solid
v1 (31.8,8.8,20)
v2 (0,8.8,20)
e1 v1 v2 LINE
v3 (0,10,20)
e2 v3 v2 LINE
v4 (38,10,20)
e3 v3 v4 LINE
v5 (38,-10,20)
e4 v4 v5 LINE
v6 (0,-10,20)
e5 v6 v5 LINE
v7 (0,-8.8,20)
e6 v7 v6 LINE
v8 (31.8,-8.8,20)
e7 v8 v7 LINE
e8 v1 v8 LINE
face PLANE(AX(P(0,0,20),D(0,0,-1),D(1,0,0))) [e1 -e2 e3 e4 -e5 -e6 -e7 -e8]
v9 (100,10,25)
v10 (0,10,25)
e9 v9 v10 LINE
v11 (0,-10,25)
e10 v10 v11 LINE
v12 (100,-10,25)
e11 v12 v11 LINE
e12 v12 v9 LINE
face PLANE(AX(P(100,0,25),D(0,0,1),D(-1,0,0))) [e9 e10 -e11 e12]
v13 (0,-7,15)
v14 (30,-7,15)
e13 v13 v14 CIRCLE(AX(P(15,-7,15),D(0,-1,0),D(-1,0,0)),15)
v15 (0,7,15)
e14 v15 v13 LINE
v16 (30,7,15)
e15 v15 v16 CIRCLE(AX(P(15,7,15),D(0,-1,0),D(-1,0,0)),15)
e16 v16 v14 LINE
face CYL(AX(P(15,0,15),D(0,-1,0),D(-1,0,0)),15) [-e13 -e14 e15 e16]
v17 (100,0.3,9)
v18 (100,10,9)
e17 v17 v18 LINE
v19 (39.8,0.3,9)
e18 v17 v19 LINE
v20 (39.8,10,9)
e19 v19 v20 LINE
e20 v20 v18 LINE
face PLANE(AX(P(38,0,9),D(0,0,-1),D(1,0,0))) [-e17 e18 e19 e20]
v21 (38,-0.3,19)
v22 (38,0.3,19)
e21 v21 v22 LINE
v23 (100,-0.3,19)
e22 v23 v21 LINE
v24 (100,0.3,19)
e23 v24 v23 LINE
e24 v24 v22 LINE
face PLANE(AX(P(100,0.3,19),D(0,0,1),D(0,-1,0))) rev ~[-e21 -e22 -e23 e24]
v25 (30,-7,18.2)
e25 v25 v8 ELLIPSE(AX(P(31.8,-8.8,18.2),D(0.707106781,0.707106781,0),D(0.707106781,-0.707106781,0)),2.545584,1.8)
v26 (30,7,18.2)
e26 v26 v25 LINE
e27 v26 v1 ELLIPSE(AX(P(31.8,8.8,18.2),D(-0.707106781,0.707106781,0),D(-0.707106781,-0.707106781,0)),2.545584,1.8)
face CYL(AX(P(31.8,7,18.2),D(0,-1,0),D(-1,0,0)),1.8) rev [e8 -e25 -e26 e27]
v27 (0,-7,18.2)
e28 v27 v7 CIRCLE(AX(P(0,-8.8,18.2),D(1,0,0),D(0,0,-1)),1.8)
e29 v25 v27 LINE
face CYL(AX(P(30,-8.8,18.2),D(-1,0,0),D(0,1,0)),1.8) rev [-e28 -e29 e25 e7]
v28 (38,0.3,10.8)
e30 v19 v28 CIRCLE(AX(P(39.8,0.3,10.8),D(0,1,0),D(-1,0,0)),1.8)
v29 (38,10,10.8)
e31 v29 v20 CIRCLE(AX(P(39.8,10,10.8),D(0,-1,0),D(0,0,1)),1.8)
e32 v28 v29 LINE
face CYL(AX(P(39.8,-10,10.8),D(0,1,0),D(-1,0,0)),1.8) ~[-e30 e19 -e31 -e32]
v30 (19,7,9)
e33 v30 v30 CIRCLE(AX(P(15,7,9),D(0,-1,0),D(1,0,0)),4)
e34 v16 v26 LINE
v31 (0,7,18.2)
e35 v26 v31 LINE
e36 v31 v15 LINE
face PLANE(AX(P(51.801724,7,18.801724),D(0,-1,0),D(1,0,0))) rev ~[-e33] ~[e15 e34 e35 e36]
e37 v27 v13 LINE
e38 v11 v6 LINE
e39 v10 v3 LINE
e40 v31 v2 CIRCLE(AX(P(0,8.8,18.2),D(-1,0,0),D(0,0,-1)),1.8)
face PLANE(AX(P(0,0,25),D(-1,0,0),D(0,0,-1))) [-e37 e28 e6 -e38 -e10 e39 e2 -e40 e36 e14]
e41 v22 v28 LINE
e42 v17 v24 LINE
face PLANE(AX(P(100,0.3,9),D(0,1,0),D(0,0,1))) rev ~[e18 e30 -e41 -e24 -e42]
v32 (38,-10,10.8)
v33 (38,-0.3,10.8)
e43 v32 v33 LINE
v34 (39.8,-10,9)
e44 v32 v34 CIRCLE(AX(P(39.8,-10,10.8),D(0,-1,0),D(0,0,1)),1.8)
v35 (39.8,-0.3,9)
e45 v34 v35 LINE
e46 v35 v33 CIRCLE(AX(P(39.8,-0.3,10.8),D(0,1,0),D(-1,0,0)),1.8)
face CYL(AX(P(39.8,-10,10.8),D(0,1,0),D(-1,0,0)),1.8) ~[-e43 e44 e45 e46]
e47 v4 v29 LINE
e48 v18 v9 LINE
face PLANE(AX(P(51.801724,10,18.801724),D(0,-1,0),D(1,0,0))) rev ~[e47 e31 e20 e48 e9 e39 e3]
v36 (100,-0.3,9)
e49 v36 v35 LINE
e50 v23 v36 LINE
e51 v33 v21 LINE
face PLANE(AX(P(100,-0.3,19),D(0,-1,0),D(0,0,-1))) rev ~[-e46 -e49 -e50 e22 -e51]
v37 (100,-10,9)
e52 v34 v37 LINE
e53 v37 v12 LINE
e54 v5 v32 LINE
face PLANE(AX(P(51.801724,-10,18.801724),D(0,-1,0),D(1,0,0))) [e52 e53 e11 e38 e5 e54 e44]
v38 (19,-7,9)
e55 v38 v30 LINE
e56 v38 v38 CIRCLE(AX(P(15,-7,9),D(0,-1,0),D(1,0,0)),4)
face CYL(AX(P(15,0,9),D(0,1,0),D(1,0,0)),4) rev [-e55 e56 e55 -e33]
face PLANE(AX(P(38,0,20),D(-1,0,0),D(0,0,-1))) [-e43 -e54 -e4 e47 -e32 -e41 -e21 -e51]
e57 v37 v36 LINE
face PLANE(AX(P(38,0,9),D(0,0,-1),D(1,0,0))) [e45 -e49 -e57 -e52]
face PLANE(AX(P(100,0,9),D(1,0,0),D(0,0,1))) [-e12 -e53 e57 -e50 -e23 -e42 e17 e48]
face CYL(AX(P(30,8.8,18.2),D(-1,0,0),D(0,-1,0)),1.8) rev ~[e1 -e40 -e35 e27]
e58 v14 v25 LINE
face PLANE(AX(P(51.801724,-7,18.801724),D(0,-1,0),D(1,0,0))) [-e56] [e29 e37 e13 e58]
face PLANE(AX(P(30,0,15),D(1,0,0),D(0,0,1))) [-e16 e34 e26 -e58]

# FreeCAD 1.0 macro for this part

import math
import FreeCAD as App
import Part
import Sketcher
Q = App.Units.Quantity


def edges_at(feature, points):
    """Names of the edges that pass closest to the given points."""
    edges = feature.Shape.Edges
    near = lambda p: min(range(len(edges)), key=lambda i: edges[i].distToShape(Part.Vertex(*p))[0])
    return sorted({f"Edge{near(p) + 1}" for p in points})


def add_polygon(sketch, points):
    """Adds a closed chain of lines whose ends are joined by coincident constraints."""
    first, n = sketch.GeometryCount, len(points)
    for a, b in zip(points, points[1:] + points[:1]):
        sketch.addGeometry(Part.LineSegment(App.Vector(*a, 0), App.Vector(*b, 0)), False)
    for i in range(n):
        sketch.addConstraint(Sketcher.Constraint("Coincident", first + i, 2, first + (i + 1) % n, 1))

doc = App.newDocument("Part")
body = doc.addObject("PartDesign::Body", "Body")

# Sketch on XZ plane
sketch1 = doc.addObject("Sketcher::SketchObject", "Sketch")
body.addObject(sketch1)
sketch1.AttachmentSupport = (doc.XZ_Plane, [""])
sketch1.MapMode = "FlatFace"
add_polygon(sketch1, [(100, 25), (0, 25), (0, 20), (38, 20), (38, 9), (100, 9)])  # lines 0-5
sketch1.addConstraint(Sketcher.Constraint("Horizontal", 0))
sketch1.addConstraint(Sketcher.Constraint("Vertical", 1))
sketch1.addConstraint(Sketcher.Constraint("Horizontal", 2))
sketch1.addConstraint(Sketcher.Constraint("Vertical", 3))
sketch1.addConstraint(Sketcher.Constraint("Horizontal", 4))
sketch1.addConstraint(Sketcher.Constraint("Vertical", 5))
sketch1.addConstraint(Sketcher.Constraint("PointOnObject", 0, 2, -2))
sketch1.addConstraint(Sketcher.Constraint("DistanceX", 0, 2, 0, 1, Q("100 mm")))
sketch1.addConstraint(Sketcher.Constraint("DistanceX", 2, 1, 2, 2, Q("38 mm")))
sketch1.addConstraint(Sketcher.Constraint("DistanceY", 1, 2, 1, 1, Q("5 mm")))
sketch1.addConstraint(Sketcher.Constraint("DistanceY", 3, 2, 3, 1, Q("11 mm")))
sketch1.addConstraint(Sketcher.Constraint("DistanceY", -1, 1, 0, 2, Q("25 mm")))
pad1 = doc.addObject("PartDesign::Pad", "Pad")
body.addObject(pad1)
pad1.Profile = sketch1
pad1.Length = 20
pad1.Midplane = True

# Sketch on XZ plane
sketch2 = doc.addObject("Sketcher::SketchObject", "Sketch001")
body.addObject(sketch2)
sketch2.AttachmentSupport = (doc.XZ_Plane, [""])
sketch2.MapMode = "FlatFace"
sketch2.addGeometry(Part.LineSegment(App.Vector(100, 25, 0), App.Vector(0, 25, 0)), False)
sketch2.addGeometry(Part.LineSegment(App.Vector(0, 25, 0), App.Vector(0, 15, 0)), False)
sketch2.addGeometry(Part.ArcOfCircle(Part.Circle(App.Vector(15, 15, 0), App.Vector(0, 0, 1), 15), math.radians(180), math.radians(360)), False)
sketch2.addGeometry(Part.LineSegment(App.Vector(30, 15, 0), App.Vector(30, 20, 0)), False)
sketch2.addGeometry(Part.LineSegment(App.Vector(30, 20, 0), App.Vector(38, 20, 0)), False)
sketch2.addGeometry(Part.LineSegment(App.Vector(38, 20, 0), App.Vector(38, 9, 0)), False)
sketch2.addGeometry(Part.LineSegment(App.Vector(38, 9, 0), App.Vector(100, 9, 0)), False)
sketch2.addGeometry(Part.LineSegment(App.Vector(100, 9, 0), App.Vector(100, 25, 0)), False)
sketch2.addGeometry(Part.Circle(App.Vector(15, 9, 0), App.Vector(0, 0, 1), 4), False)
sketch2.addConstraint(Sketcher.Constraint("Coincident", 0, 2, 1, 1))
sketch2.addConstraint(Sketcher.Constraint("Tangent", 1, 2, 2, 1))
sketch2.addConstraint(Sketcher.Constraint("Tangent", 2, 2, 3, 1))
sketch2.addConstraint(Sketcher.Constraint("Coincident", 3, 2, 4, 1))
sketch2.addConstraint(Sketcher.Constraint("Coincident", 4, 2, 5, 1))
sketch2.addConstraint(Sketcher.Constraint("Coincident", 5, 2, 6, 1))
sketch2.addConstraint(Sketcher.Constraint("Coincident", 6, 2, 7, 1))
sketch2.addConstraint(Sketcher.Constraint("Coincident", 7, 2, 0, 1))
sketch2.addConstraint(Sketcher.Constraint("Horizontal", 0))
sketch2.addConstraint(Sketcher.Constraint("Vertical", 1))
sketch2.addConstraint(Sketcher.Constraint("Vertical", 3))
sketch2.addConstraint(Sketcher.Constraint("Horizontal", 4))
sketch2.addConstraint(Sketcher.Constraint("Vertical", 5))
sketch2.addConstraint(Sketcher.Constraint("Horizontal", 6))
sketch2.addConstraint(Sketcher.Constraint("Vertical", 7))
sketch2.addConstraint(Sketcher.Constraint("PointOnObject", 0, 2, -2))
sketch2.addConstraint(Sketcher.Constraint("Horizontal", 8, 3, 5, 2))
sketch2.addConstraint(Sketcher.Constraint("Vertical", 2, 3, 8, 3))
sketch2.addConstraint(Sketcher.Constraint("Diameter", 8, Q("8 mm")))
sketch2.addConstraint(Sketcher.Constraint("Radius", 2, Q("15 mm")))
sketch2.addConstraint(Sketcher.Constraint("DistanceX", 0, 2, 0, 1, Q("100 mm")))
sketch2.addConstraint(Sketcher.Constraint("DistanceX", 4, 1, 4, 2, Q("8 mm")))
sketch2.addConstraint(Sketcher.Constraint("DistanceY", 1, 2, 1, 1, Q("10 mm")))
sketch2.addConstraint(Sketcher.Constraint("DistanceY", 3, 1, 3, 2, Q("5 mm")))
sketch2.addConstraint(Sketcher.Constraint("DistanceY", 5, 2, 5, 1, Q("11 mm")))
sketch2.addConstraint(Sketcher.Constraint("DistanceY", -1, 1, 2, 3, Q("15 mm")))
pad2 = doc.addObject("PartDesign::Pad", "Pad001")
body.addObject(pad2)
pad2.Profile = sketch2
pad2.Length = 14
pad2.Midplane = True
doc.recompute()

fillet = doc.addObject("PartDesign::Fillet", "Fillet")
body.addObject(fillet)
fillet.Base = (pad2, edges_at(pad2, [
    (30, 0, 20),
    (15, -7, 20),
    (15, 7, 20),
    (38, 0, 9),
]))
fillet.Radius = 1.8

# Sketch on YZ plane
sketch3 = doc.addObject("Sketcher::SketchObject", "Sketch002")
body.addObject(sketch3)
sketch3.AttachmentSupport = (doc.YZ_Plane, [""])
sketch3.MapMode = "FlatFace"
sketch3.AttachmentOffset = App.Placement(App.Vector(0, 0, 100), App.Rotation())
add_polygon(sketch3, [(-0.3, 9), (0.3, 9), (0.3, 19), (-0.3, 19)])  # lines 0-3
sketch3.addConstraint(Sketcher.Constraint("Horizontal", 0))
sketch3.addConstraint(Sketcher.Constraint("Vertical", 1))
sketch3.addConstraint(Sketcher.Constraint("Horizontal", 2))
sketch3.addConstraint(Sketcher.Constraint("Vertical", 3))
sketch3.addConstraint(Sketcher.Constraint("DistanceY", 1, 1, 1, 2, Q("10 mm")))
sketch3.addConstraint(Sketcher.Constraint("DistanceX", 0, 1, 0, 2, Q("0.6 mm")))
sketch3.addConstraint(Sketcher.Constraint("DistanceY", -1, 1, 0, 2, Q("9 mm")))
sketch3.addConstraint(Sketcher.Constraint("DistanceX", -1, 1, 0, 2, Q("0.3 mm")))
pocket1 = doc.addObject("PartDesign::Pocket", "Pocket")
body.addObject(pocket1)
pocket1.Profile = sketch3
pocket1.Length = 65

doc.recompute()
